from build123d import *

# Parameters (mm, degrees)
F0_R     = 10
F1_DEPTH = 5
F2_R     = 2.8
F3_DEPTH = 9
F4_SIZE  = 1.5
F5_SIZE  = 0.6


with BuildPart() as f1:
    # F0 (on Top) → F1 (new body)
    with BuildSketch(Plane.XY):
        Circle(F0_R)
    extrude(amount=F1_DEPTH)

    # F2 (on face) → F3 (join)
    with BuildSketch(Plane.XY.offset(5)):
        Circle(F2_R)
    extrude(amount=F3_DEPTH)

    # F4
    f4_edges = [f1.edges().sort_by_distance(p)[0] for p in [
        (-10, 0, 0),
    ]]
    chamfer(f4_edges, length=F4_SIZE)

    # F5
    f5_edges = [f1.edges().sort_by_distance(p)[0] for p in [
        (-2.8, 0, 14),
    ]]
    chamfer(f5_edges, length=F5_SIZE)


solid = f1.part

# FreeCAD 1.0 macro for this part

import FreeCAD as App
import Part
import Sketcher
Q = App.Units.Quantity


def edges_at(feature, points):
    """Names of the edges that pass closest to the given points."""
    edges = feature.Shape.Edges
    near = lambda p: min(range(len(edges)), key=lambda i: edges[i].distToShape(Part.Vertex(*p))[0])
    return sorted({f"Edge{near(p) + 1}" for p in points})

doc = App.newDocument("Part")
params = doc.addObject("Spreadsheet::Sheet", "Params")
for row, (alias, value) in enumerate([
    ("sketch1_diameter", "20 mm"),
    ("pad1_length", "5 mm"),
    ("sketch2_diameter", "5.6 mm"),
    ("pad2_length", "9 mm"),
    ("chamfer_size", "1.5 mm"),
    ("chamfer2_size", "0.6 mm"),
], start=1):
    params.set(f"A{row}", alias)
    params.set(f"B{row}", "=" + value)
    params.setAlias(f"B{row}", alias)

body = doc.addObject("PartDesign::Body", "Body")

# Sketch on XY plane
sketch1 = body.newObject("Sketcher::SketchObject", "Sketch")
sketch1.AttachmentSupport = (doc.getObject("XY_Plane"), [""])
sketch1.MapMode = "FlatFace"
sketch1.addGeometry(Part.Circle(App.Vector(0, 0, 0), App.Vector(0, 0, 1), 10), False)
sketch1.addConstraint(Sketcher.Constraint("Coincident", 0, 3, -1, 1))
sketch1.addConstraint(Sketcher.Constraint("Diameter", 0, Q("20 mm")))
sketch1.setExpression("Constraints[1]", "Params.sketch1_diameter")
pad1 = body.newObject("PartDesign::Pad", "Pad")
pad1.Profile = sketch1
pad1.setExpression("Length", "Params.pad1_length")

# Sketch on XY plane
sketch2 = body.newObject("Sketcher::SketchObject", "Sketch001")
sketch2.AttachmentSupport = (doc.getObject("XY_Plane"), [""])
sketch2.MapMode = "FlatFace"
sketch2.AttachmentOffset = App.Placement(App.Vector(0, 0, 5), App.Rotation())
sketch2.addGeometry(Part.Circle(App.Vector(0, 0, 0), App.Vector(0, 0, 1), 2.8), False)
sketch2.addConstraint(Sketcher.Constraint("Coincident", 0, 3, -1, 1))
sketch2.addConstraint(Sketcher.Constraint("Diameter", 0, Q("5.6 mm")))
sketch2.setExpression("Constraints[1]", "Params.sketch2_diameter")
pad2 = body.newObject("PartDesign::Pad", "Pad001")
pad2.Profile = sketch2
pad2.setExpression("Length", "Params.pad2_length")
doc.recompute()

chamfer = body.newObject("PartDesign::Chamfer", "Chamfer")
chamfer.Base = (pad2, edges_at(pad2, [(-10, 0, 0)]))
chamfer.setExpression("Size", "Params.chamfer_size")
doc.recompute()

chamfer2 = body.newObject("PartDesign::Chamfer", "Chamfer001")
chamfer2.Base = (chamfer, edges_at(chamfer, [(-2.8, 0, 14)]))
chamfer2.setExpression("Size", "Params.chamfer2_size")

doc.recompute()
